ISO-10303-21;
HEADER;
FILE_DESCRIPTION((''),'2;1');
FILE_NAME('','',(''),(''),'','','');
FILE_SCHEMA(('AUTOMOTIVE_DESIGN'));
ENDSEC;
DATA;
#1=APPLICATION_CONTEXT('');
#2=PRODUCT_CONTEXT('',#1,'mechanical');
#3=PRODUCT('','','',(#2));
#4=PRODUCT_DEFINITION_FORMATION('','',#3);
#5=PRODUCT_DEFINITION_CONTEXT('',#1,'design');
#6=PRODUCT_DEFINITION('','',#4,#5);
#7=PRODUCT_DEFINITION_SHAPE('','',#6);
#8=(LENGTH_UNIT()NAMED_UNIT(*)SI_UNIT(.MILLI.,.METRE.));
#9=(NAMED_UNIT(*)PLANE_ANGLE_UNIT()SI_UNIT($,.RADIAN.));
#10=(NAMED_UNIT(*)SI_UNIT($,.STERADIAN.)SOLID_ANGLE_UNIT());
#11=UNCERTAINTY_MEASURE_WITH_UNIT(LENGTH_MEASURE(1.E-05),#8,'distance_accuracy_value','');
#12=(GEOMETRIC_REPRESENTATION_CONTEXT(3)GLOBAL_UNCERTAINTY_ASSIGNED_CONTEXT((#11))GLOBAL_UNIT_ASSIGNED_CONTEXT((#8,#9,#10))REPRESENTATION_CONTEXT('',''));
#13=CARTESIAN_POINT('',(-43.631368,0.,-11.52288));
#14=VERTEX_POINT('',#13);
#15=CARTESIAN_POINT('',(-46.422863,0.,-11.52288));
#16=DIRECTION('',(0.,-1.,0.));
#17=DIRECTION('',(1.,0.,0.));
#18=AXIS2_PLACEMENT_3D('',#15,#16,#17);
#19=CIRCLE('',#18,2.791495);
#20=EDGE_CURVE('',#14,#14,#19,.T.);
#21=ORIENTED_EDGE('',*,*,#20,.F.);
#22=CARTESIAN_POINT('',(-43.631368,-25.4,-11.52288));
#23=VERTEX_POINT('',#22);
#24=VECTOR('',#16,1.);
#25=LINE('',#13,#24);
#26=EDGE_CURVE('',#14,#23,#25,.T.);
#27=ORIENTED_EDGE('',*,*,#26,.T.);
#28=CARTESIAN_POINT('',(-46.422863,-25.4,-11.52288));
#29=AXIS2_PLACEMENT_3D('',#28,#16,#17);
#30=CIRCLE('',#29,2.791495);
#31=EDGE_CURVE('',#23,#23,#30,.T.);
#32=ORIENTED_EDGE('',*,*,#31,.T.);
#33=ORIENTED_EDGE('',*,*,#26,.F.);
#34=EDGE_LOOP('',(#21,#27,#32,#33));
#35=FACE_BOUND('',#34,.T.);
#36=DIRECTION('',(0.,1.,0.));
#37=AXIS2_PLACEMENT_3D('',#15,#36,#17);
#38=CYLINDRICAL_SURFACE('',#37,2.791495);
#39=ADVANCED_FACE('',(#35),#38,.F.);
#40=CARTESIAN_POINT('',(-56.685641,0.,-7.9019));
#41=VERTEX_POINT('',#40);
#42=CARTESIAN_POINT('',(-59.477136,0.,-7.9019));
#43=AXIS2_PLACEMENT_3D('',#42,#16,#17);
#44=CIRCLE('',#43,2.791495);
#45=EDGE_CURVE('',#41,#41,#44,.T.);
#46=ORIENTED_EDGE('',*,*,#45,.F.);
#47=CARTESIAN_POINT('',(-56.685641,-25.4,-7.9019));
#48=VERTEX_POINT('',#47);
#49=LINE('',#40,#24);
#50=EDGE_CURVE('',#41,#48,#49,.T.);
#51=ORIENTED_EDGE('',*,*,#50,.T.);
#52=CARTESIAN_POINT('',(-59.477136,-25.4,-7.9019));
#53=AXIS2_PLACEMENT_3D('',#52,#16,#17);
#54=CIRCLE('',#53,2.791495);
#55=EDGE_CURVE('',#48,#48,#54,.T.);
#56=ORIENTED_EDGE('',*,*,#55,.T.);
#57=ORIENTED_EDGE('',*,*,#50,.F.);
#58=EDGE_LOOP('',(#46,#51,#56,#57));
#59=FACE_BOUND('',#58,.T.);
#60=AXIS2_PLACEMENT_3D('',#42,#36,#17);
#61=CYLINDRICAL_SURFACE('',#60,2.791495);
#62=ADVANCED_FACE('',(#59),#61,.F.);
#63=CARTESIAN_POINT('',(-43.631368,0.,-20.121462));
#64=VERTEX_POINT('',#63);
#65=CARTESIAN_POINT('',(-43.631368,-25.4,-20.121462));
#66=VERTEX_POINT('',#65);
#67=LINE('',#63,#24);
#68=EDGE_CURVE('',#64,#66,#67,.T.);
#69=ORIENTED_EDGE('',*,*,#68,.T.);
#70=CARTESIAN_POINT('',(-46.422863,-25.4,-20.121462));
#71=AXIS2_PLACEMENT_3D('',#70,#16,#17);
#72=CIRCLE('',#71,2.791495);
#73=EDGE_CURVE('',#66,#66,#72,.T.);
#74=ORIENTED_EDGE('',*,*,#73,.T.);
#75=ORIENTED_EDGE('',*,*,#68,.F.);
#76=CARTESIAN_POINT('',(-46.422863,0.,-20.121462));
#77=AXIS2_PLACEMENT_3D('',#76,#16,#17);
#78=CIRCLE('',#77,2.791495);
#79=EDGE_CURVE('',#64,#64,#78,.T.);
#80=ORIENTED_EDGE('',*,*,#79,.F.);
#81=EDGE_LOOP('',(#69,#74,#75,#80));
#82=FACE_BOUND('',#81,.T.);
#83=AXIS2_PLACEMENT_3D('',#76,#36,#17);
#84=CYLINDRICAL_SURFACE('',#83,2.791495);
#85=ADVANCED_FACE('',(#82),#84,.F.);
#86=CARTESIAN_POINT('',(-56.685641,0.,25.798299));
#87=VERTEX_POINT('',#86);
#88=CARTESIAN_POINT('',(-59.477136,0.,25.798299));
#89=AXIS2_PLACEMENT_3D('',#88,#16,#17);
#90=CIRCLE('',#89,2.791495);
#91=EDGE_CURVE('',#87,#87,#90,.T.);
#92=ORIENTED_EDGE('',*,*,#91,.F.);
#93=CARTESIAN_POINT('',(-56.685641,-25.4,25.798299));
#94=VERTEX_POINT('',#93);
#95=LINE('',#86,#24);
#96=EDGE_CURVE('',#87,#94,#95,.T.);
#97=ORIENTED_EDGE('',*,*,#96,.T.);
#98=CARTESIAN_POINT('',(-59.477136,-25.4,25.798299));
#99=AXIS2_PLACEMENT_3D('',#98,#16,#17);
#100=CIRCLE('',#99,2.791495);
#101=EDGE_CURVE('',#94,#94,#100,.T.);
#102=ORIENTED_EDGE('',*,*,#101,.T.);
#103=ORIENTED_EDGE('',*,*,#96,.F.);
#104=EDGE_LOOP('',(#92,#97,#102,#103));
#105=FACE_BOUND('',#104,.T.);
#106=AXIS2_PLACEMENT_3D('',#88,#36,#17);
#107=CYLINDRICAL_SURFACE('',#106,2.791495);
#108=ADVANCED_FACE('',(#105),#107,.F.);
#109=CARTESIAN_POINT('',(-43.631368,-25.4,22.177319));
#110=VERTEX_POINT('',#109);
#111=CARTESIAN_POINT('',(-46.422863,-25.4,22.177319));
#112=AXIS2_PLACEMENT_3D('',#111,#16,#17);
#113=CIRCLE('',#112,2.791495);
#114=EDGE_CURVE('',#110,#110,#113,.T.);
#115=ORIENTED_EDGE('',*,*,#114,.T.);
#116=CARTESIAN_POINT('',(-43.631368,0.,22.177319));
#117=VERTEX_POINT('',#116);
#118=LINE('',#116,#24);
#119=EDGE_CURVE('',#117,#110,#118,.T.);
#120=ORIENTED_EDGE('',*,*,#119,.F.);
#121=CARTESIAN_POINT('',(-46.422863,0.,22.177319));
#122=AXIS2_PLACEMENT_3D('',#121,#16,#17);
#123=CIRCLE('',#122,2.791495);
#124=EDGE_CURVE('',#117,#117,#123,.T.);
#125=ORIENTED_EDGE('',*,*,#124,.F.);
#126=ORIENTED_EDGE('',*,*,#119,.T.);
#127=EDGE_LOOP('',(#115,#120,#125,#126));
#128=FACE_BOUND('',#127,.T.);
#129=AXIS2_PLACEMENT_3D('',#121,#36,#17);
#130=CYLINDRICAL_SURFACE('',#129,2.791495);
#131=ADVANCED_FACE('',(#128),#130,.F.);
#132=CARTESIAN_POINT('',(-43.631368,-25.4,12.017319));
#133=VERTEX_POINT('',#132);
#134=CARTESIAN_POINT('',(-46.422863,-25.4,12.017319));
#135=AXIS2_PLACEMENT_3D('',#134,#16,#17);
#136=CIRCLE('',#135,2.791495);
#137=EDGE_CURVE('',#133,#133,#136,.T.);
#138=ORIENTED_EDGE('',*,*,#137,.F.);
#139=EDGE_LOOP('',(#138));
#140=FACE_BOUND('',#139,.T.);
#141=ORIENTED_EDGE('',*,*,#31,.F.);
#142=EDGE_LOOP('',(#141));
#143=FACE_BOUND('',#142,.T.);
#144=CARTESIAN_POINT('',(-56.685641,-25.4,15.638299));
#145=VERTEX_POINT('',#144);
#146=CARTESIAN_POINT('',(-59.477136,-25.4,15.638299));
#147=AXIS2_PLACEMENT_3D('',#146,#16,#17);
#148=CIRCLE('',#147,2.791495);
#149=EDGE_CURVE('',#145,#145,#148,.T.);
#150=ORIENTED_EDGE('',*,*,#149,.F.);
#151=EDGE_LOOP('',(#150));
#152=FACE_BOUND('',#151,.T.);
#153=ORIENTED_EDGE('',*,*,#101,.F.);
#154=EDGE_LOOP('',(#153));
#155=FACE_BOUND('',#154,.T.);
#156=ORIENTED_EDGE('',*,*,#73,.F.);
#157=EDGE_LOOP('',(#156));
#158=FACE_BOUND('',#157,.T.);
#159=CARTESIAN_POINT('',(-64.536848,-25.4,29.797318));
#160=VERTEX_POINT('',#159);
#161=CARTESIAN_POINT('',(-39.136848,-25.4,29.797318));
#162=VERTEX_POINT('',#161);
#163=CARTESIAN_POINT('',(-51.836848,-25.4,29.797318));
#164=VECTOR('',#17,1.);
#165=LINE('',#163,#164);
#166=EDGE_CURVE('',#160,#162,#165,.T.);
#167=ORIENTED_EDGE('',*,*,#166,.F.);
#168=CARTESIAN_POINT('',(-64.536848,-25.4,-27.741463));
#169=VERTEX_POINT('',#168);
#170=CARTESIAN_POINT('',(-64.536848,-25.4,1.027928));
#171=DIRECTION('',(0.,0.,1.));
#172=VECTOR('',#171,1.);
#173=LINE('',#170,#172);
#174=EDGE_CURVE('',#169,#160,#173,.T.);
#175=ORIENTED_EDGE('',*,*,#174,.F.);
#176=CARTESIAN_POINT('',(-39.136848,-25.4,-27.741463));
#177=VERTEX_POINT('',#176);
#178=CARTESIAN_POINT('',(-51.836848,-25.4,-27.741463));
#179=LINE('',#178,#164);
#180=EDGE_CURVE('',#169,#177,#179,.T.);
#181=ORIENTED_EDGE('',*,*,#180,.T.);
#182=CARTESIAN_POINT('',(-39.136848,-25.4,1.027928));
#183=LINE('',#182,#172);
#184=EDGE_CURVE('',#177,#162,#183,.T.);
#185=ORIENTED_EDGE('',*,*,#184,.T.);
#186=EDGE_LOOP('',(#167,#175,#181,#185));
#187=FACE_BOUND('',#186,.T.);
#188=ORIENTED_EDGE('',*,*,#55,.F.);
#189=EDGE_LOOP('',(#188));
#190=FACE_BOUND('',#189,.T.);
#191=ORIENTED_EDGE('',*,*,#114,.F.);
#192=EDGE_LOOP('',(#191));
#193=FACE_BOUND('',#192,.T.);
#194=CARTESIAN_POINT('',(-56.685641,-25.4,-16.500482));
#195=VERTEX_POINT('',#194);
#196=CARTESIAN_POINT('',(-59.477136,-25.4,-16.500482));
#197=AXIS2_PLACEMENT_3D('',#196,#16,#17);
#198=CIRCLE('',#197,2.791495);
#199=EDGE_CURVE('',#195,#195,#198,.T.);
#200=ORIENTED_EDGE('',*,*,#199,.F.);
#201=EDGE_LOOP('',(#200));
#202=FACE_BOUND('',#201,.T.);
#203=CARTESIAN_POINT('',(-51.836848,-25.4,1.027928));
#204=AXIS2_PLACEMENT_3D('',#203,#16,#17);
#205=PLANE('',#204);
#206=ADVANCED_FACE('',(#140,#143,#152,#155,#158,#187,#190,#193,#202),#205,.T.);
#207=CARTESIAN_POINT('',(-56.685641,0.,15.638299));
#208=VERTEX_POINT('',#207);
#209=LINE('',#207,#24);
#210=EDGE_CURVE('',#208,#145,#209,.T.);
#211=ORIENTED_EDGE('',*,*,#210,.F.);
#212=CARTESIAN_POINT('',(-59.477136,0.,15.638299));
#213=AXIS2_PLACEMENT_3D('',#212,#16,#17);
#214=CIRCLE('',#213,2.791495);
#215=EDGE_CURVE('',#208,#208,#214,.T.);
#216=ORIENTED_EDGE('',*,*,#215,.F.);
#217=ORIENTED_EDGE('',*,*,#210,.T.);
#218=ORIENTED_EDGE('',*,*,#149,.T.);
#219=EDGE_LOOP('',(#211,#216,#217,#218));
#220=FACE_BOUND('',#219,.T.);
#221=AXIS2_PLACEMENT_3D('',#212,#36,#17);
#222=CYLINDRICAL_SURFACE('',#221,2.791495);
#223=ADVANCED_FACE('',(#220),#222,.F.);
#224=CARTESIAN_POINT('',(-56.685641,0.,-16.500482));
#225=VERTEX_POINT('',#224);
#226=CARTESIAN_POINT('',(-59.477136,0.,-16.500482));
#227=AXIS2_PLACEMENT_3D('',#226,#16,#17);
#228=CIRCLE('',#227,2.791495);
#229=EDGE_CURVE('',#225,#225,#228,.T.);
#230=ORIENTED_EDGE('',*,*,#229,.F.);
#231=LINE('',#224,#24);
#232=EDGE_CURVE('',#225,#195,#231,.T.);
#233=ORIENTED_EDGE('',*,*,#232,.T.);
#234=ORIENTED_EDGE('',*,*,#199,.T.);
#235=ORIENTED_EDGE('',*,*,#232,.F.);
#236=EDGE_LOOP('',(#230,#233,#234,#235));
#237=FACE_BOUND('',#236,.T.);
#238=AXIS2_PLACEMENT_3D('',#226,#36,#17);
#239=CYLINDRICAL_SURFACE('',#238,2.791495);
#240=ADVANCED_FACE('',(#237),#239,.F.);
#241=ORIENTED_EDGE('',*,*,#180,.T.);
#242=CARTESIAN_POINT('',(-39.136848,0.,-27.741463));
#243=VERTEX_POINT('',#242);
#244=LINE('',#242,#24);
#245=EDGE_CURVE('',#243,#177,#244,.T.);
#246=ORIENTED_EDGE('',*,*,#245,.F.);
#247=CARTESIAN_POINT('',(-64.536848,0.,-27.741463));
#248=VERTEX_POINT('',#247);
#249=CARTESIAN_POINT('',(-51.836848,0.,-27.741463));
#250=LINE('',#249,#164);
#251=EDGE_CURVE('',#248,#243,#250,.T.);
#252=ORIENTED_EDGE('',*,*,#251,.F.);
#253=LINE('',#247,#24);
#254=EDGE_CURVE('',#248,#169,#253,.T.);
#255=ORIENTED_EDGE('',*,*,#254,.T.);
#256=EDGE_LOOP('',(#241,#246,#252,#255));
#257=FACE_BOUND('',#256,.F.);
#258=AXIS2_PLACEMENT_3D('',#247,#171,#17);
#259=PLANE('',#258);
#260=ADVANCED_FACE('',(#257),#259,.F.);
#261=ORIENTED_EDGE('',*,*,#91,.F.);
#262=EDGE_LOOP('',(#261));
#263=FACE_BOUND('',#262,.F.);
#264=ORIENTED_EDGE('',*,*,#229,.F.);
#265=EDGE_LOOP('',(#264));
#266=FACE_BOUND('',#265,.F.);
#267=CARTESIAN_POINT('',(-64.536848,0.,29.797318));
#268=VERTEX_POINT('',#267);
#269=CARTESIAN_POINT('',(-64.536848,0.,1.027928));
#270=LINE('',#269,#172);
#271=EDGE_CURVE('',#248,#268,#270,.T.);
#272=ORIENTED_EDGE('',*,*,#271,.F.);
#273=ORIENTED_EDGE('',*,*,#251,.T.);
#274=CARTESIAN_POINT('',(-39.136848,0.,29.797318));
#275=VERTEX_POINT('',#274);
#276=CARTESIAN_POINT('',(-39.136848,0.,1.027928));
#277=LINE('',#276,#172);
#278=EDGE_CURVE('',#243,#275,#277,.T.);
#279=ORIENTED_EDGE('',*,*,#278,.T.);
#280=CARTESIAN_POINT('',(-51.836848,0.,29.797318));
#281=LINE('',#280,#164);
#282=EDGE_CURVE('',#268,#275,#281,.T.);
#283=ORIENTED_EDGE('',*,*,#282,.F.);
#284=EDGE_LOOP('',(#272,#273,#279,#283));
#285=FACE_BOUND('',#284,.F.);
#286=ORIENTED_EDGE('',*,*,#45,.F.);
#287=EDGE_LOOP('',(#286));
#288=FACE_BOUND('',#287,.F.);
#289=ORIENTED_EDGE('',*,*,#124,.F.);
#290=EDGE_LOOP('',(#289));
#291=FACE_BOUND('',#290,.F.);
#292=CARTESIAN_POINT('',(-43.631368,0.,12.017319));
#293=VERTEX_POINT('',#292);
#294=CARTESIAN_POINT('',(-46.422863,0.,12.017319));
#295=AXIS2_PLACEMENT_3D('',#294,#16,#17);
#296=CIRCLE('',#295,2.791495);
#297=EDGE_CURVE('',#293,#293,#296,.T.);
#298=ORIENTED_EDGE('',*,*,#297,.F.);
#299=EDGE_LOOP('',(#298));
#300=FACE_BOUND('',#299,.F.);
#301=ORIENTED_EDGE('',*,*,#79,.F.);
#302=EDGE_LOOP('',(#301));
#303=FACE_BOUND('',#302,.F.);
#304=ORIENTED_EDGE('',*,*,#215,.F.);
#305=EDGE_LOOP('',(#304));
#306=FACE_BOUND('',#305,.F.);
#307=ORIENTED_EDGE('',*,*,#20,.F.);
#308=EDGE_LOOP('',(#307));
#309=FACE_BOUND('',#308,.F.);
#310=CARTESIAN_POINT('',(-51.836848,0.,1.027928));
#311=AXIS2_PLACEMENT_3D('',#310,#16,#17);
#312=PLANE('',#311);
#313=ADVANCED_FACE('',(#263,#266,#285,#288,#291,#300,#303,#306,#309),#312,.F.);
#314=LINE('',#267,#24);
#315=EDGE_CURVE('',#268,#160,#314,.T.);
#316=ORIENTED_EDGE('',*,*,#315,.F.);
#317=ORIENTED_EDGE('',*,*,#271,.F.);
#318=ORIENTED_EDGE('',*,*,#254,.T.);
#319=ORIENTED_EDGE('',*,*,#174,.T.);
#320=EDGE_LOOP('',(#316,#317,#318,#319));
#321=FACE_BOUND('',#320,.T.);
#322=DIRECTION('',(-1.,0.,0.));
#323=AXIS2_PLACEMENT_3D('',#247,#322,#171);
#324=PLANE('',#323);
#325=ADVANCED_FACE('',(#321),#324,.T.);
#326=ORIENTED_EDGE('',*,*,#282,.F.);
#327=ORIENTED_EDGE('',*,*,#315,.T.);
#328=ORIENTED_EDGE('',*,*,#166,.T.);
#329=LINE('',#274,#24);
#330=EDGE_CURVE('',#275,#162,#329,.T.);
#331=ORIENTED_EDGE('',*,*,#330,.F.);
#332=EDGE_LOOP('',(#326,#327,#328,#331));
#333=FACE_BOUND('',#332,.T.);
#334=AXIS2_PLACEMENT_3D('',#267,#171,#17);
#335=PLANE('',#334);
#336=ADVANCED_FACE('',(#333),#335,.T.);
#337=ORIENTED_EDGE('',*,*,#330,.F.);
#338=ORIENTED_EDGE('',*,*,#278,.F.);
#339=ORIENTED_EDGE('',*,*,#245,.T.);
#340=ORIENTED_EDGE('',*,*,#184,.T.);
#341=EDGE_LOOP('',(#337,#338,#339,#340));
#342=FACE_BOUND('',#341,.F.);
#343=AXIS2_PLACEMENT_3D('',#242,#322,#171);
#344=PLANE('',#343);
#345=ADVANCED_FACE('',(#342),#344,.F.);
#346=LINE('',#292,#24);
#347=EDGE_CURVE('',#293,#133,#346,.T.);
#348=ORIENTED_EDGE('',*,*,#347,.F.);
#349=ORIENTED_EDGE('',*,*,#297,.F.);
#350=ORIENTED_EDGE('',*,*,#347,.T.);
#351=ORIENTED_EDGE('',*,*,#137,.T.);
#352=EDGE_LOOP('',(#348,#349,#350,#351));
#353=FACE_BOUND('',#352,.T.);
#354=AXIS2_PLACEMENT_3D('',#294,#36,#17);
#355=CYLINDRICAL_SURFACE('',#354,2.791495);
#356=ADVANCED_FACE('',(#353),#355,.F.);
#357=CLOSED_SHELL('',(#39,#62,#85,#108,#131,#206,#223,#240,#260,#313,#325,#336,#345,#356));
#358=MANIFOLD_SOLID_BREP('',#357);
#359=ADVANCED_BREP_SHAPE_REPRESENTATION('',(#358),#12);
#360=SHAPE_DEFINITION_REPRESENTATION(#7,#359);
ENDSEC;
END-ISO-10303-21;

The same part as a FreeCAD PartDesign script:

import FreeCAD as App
import Part
import Sketcher

V = App.Vector
Q = App.Units.Quantity


def add_polygon(sketch, points):
    """Adds a closed chain of lines whose ends are joined by coincident constraints."""
    first, n = sketch.GeometryCount, len(points)
    for a, b in zip(points, points[1:] + points[:1]):
        sketch.addGeometry(Part.LineSegment(App.Vector(*a, 0), App.Vector(*b, 0)), False)
    for i in range(n):
        sketch.addConstraint(Sketcher.Constraint("Coincident", first + i, 2, first + (i + 1) % n, 1))

doc = App.newDocument("Part")
params = doc.addObject("Spreadsheet::Sheet", "Params")
for row, (alias, value) in enumerate([
    ("sketch1_width", "1 in"),
    ("pad1_length", "1 in"),
], start=1):
    params.set(f"A{row}", alias)
    params.set(f"B{row}", "=" + value)
    params.setAlias(f"B{row}", alias)

body = doc.addObject("PartDesign::Body", "Body")

# Sketch on XZ plane
sketch1 = body.newObject("Sketcher::SketchObject", "Sketch")
sketch1.AttachmentSupport = (doc.getObject("XZ_Plane"), [""])
sketch1.MapMode = "FlatFace"
add_polygon(sketch1, [(-64.5, 29.8), (-64.5, -27.7), (-39.1, -27.7), (-39.1, 29.8)])  # lines 0-3
sketch1.addGeometry(Part.Circle(V(-59.5, -16.5, 0), V(0, 0, 1), 2.8), False)  # 4
sketch1.addGeometry(Part.Circle(V(-59.5, -7.9, 0), V(0, 0, 1), 2.8), False)  # 5
sketch1.addGeometry(Part.Circle(V(-46.4, -20.1, 0), V(0, 0, 1), 2.8), False)  # 6
sketch1.addGeometry(Part.Circle(V(-46.4, -11.5, 0), V(0, 0, 1), 2.8), False)  # 7
sketch1.addGeometry(Part.Circle(V(-59.5, 15.6, 0), V(0, 0, 1), 2.8), False)  # 8
sketch1.addGeometry(Part.Circle(V(-59.5, 25.8, 0), V(0, 0, 1), 2.8), False)  # 9
sketch1.addGeometry(Part.Circle(V(-46.4, 12, 0), V(0, 0, 1), 2.8), False)  # 10
sketch1.addGeometry(Part.Circle(V(-46.4, 22.2, 0), V(0, 0, 1), 2.8), False)  # 11
sketch1.addConstraint([
    Sketcher.Constraint("Vertical", 0),
    Sketcher.Constraint("Horizontal", 1),
    Sketcher.Constraint("Vertical", 2),
    Sketcher.Constraint("Horizontal", 3),
    Sketcher.Constraint("Equal", 4, 5),
    Sketcher.Constraint("Equal", 5, 6),
    Sketcher.Constraint("Equal", 6, 7),
    Sketcher.Constraint("Equal", 7, 8),
    Sketcher.Constraint("Equal", 8, 9),
    Sketcher.Constraint("Equal", 9, 10),
    Sketcher.Constraint("Equal", 10, 11),
    Sketcher.Constraint("Vertical", 4, 3, 5, 3),
    Sketcher.Constraint("Vertical", 6, 3, 7, 3),
    Sketcher.Constraint("Vertical", 5, 3, 8, 3),
    Sketcher.Constraint("Vertical", 8, 3, 9, 3),
    Sketcher.Constraint("Vertical", 7, 3, 10, 3),
    Sketcher.Constraint("Vertical", 10, 3, 11, 3),
    Sketcher.Constraint("DistanceX", 1, 1, 1, 2, Q("1 in")),
    Sketcher.Constraint("DistanceY", 8, 3, 9, 3, Q("0.4 in")),
    Sketcher.Constraint("DistanceY", 10, 3, 11, 3, Q("0.4 in")),
    Sketcher.Constraint("DistanceY", 0, 2, 6, 3, Q("0.3 in")),
    Sketcher.Constraint("DistanceY", 11, 3, 2, 2, Q("0.3 in")),
    Sketcher.Constraint("Diameter", 4, Q("5.58299 mm")),
    Sketcher.Constraint("DistanceY", 0, 2, 0, 1, Q("57.538781 mm")),
    Sketcher.Constraint("DistanceY", 5, 3, -1, 1, Q("7.9019 mm")),
    Sketcher.Constraint("DistanceY", -1, 1, 8, 3, Q("15.638299 mm")),
    Sketcher.Constraint("DistanceY", 7, 3, 10, 3, Q("23.540199 mm")),
    Sketcher.Constraint("DistanceY", 4, 3, 10, 3, Q("28.517801 mm")),
    Sketcher.Constraint("DistanceY", 7, 3, -1, 1, Q("11.52288 mm")),
    Sketcher.Constraint("DistanceX", 0, 2, -1, 1, Q("64.536848 mm")),
    Sketcher.Constraint("DistanceX", 4, 3, 1, 2, Q("20.340288 mm")),
    Sketcher.Constraint("DistanceX", 6, 3, -1, 1, Q("46.422863 mm")),
])
sketch1.setExpression("Constraints[21]", "Params.sketch1_width")
pad1 = body.newObject("PartDesign::Pad", "Pad")
pad1.Profile = sketch1
pad1.setExpression("Length", "Params.pad1_length")

doc.recompute()
